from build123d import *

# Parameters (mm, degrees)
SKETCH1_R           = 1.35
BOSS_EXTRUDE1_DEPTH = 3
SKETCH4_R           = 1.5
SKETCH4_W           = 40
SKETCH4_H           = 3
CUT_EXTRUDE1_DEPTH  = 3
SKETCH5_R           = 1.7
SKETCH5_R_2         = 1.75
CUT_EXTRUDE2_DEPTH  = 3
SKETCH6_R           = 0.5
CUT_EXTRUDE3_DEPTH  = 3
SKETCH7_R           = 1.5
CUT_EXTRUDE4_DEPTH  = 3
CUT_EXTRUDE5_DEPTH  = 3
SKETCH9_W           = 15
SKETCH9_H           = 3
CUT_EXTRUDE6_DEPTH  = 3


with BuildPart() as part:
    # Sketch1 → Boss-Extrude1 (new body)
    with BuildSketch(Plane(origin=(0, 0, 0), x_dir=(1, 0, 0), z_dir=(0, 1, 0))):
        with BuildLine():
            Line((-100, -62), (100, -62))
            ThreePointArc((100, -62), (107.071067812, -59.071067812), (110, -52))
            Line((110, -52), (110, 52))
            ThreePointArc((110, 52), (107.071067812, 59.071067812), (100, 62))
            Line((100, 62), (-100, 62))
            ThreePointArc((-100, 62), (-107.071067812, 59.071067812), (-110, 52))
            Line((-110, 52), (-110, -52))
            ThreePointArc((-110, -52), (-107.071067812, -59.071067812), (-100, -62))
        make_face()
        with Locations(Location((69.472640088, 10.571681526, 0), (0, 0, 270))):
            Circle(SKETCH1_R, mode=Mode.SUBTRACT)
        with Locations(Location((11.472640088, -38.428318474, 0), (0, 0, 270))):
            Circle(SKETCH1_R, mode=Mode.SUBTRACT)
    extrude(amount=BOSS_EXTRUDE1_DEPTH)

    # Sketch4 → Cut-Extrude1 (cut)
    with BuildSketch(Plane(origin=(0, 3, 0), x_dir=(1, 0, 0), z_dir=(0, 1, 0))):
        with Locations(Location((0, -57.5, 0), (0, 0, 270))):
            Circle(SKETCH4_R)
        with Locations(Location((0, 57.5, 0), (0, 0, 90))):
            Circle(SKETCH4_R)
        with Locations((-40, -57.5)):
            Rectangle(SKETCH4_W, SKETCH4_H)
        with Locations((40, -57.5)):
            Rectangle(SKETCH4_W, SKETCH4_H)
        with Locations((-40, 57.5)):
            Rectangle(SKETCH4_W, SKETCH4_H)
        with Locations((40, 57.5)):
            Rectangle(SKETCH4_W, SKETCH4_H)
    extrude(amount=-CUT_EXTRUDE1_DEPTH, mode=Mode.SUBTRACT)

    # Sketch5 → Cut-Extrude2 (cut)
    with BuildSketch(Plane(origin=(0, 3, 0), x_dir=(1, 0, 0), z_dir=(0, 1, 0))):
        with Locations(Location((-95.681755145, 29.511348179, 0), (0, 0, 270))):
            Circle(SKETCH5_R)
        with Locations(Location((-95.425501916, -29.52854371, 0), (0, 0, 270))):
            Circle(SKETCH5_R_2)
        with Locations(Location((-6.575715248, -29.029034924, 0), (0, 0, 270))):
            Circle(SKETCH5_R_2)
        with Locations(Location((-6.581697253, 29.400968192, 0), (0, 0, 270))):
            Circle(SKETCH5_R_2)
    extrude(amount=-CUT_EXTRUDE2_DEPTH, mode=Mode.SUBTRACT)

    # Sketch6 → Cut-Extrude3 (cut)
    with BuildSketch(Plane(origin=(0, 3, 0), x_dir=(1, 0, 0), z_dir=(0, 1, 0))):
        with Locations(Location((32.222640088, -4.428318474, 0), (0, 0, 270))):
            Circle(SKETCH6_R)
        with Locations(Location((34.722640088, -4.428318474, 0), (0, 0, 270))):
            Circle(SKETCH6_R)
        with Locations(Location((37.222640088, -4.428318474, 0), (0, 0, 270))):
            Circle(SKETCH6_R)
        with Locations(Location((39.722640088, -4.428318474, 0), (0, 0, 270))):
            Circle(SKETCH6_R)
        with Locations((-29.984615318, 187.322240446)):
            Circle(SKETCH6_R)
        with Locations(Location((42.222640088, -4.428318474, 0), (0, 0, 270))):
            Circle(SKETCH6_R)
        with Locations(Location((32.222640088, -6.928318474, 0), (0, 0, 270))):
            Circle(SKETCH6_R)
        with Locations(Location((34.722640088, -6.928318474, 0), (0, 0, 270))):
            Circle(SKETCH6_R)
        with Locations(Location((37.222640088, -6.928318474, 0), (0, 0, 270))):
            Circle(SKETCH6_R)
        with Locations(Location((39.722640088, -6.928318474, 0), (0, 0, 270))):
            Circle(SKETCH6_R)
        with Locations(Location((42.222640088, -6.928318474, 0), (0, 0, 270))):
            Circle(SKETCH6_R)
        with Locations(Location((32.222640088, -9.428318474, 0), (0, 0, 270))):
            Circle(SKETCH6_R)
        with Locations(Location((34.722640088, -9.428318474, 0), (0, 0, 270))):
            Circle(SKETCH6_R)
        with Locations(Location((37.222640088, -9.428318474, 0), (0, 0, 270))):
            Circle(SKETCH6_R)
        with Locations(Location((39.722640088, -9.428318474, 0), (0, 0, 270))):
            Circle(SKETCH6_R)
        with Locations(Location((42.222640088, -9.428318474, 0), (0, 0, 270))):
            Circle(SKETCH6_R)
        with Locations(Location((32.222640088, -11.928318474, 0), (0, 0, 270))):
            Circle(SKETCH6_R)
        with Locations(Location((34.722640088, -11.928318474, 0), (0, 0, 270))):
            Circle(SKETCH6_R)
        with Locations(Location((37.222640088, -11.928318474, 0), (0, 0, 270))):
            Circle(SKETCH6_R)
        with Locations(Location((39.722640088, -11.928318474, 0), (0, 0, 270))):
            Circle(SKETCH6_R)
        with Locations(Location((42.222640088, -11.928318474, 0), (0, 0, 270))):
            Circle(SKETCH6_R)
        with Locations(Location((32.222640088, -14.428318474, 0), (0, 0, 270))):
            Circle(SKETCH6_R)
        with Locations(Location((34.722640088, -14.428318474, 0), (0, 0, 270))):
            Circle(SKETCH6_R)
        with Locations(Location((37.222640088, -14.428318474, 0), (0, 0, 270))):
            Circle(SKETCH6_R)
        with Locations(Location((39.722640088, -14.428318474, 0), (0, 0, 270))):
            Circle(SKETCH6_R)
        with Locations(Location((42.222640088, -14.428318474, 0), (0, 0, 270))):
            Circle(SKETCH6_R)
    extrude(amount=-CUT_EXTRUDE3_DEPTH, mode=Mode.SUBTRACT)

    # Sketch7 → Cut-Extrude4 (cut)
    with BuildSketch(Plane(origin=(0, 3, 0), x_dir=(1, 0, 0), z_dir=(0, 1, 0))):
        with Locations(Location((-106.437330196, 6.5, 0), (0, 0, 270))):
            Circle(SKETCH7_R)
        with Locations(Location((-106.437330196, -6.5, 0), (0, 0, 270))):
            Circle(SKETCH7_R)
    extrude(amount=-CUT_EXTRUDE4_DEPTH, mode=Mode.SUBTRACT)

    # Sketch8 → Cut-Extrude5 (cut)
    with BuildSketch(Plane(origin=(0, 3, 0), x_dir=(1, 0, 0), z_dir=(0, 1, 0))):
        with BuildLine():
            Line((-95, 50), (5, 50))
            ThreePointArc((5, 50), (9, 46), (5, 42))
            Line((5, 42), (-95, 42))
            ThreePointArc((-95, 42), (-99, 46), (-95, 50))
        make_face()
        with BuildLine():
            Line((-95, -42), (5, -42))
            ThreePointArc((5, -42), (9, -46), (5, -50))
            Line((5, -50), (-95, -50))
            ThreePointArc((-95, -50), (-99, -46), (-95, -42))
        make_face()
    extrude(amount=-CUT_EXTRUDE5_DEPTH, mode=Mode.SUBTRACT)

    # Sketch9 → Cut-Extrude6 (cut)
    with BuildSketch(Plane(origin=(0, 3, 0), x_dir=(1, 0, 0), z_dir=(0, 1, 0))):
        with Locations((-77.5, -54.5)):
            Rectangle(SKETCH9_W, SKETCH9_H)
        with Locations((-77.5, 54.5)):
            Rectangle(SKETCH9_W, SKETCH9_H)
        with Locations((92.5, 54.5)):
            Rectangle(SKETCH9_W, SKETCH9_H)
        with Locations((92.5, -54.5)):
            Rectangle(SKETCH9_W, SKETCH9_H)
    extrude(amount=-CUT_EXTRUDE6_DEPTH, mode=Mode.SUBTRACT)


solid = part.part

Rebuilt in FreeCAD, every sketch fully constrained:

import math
import FreeCAD as App
import Part
import Sketcher
from FreeCAD import Vector


def add_polygon(sketch, points):
    """Adds a closed chain of lines whose ends are joined by coincident constraints."""
    first, n = sketch.GeometryCount, len(points)
    for a, b in zip(points, points[1:] + points[:1]):
        sketch.addGeometry(Part.LineSegment(App.Vector(*a, 0), App.Vector(*b, 0)), False)
    for i in range(n):
        sketch.addConstraint(Sketcher.Constraint("Coincident", first + i, 2, first + (i + 1) % n, 1))

doc = App.newDocument("Part")
body = doc.addObject("PartDesign::Body", "Body")

sketch1 = body.newObject("Sketcher::SketchObject", "Sketch")
sketch1.AttachmentSupport = (doc.getObject("XZ_Plane"), [""])
sketch1.MapMode = "FlatFace"
sketch1.addGeometry([
    Part.LineSegment(Vector(-100, 62, 0), Vector(100, 62, 0)),
    Part.ArcOfCircle(Part.Circle(Vector(100, 52, 0), Vector(0, 0, 1), 10), math.radians(0), math.radians(90)),
    Part.LineSegment(Vector(110, 52, 0), Vector(110, -52, 0)),
    Part.ArcOfCircle(Part.Circle(Vector(100, -52, 0), Vector(0, 0, 1), 10), math.radians(-90), math.radians(0)),
    Part.LineSegment(Vector(100, -62, 0), Vector(-100, -62, 0)),
    Part.ArcOfCircle(Part.Circle(Vector(-100, -52, 0), Vector(0, 0, 1), 10), math.radians(180), math.radians(270)),
    Part.LineSegment(Vector(-110, -52, 0), Vector(-110, 52, 0)),
    Part.ArcOfCircle(Part.Circle(Vector(-100, 52, 0), Vector(0, 0, 1), 10), math.radians(90), math.radians(180)),
    Part.Circle(Vector(11.5, 38.4, 0), Vector(0, 0, 1), 1.4),
    Part.Circle(Vector(69.5, -10.6, 0), Vector(0, 0, 1), 1.4),
], False)
sketch1.addConstraint([
    Sketcher.Constraint("Tangent", 0, 2, 1, 2),
    Sketcher.Constraint("Tangent", 1, 1, 2, 1),
    Sketcher.Constraint("Tangent", 2, 2, 3, 2),
    Sketcher.Constraint("Tangent", 3, 1, 4, 1),
    Sketcher.Constraint("Tangent", 4, 2, 5, 2),
    Sketcher.Constraint("Tangent", 5, 1, 6, 1),
    Sketcher.Constraint("Tangent", 6, 2, 7, 2),
    Sketcher.Constraint("Tangent", 7, 1, 0, 1),
    Sketcher.Constraint("Horizontal", 0),
    Sketcher.Constraint("Vertical", 2),
    Sketcher.Constraint("Horizontal", 4),
    Sketcher.Constraint("Vertical", 6),
    Sketcher.Constraint("Equal", 1, 3),
    Sketcher.Constraint("Equal", 3, 5),
    Sketcher.Constraint("Equal", 5, 7),
    Sketcher.Constraint("Equal", 8, 9),
    Sketcher.Constraint("Symmetric", 1, 3, 5, 3, -1, 1),
    Sketcher.Constraint("Radius", 1, 10.0),
    Sketcher.Constraint("Diameter", 8, 2.7),
    Sketcher.Constraint("DistanceX", 0, 1, 0, 2, 200.0),
    Sketcher.Constraint("DistanceY", 2, 2, 2, 1, 104.0),
    Sketcher.Constraint("DistanceX", 8, 3, 9, 3, 58.0),
    Sketcher.Constraint("DistanceY", 9, 3, 8, 3, 49.0),
    Sketcher.Constraint("DistanceX", -1, 1, 8, 3, 11.47264),
    Sketcher.Constraint("DistanceY", -1, 1, 8, 3, 38.428318),
])
pad1 = body.newObject("PartDesign::Pad", "Pad")
pad1.Profile = sketch1
pad1.Length = 3
pad1.Reversed = True

sketch2 = body.newObject("Sketcher::SketchObject", "Sketch001")
sketch2.AttachmentSupport = (doc.getObject("XZ_Plane"), [""])
sketch2.MapMode = "FlatFace"
sketch2.AttachmentOffset = App.Placement(Vector(0, 0, -3), App.Rotation())
sketch2.addGeometry(Part.Circle(Vector(0, 57.5, 0), Vector(0, 0, 1), 1.5), False)
sketch2.addGeometry(Part.Circle(Vector(0, -57.5, 0), Vector(0, 0, 1), 1.5), False)
add_polygon(sketch2, [(-60, 56), (-60, 59), (-20, 59), (-20, 56)])
add_polygon(sketch2, [(20, 56), (20, 59), (60, 59), (60, 56)])
add_polygon(sketch2, [(-60, -59), (-60, -56), (-20, -56), (-20, -59)])
add_polygon(sketch2, [(20, -59), (20, -56), (60, -56), (60, -59)])
sketch2.addConstraint([
    Sketcher.Constraint("Vertical", 2),
    Sketcher.Constraint("Horizontal", 3),
    Sketcher.Constraint("Vertical", 4),
    Sketcher.Constraint("Horizontal", 5),
    Sketcher.Constraint("Vertical", 6),
    Sketcher.Constraint("Horizontal", 7),
    Sketcher.Constraint("Vertical", 8),
    Sketcher.Constraint("Horizontal", 9),
    Sketcher.Constraint("Vertical", 10),
    Sketcher.Constraint("Horizontal", 11),
    Sketcher.Constraint("Vertical", 12),
    Sketcher.Constraint("Horizontal", 13),
    Sketcher.Constraint("Vertical", 14),
    Sketcher.Constraint("Horizontal", 15),
    Sketcher.Constraint("Vertical", 16),
    Sketcher.Constraint("Horizontal", 17),
    Sketcher.Constraint("Equal", 0, 1),
    Sketcher.Constraint("Symmetric", 0, 3, 1, 3, -1, 1),
    Sketcher.Constraint("Symmetric", 8, 2, 10, 2, -1, 1),
    Sketcher.Constraint("Symmetric", 6, 2, 12, 2, -1, 1),
    Sketcher.Constraint("Symmetric", 4, 2, 14, 2, -1, 1),
    Sketcher.Constraint("Symmetric", 2, 2, 16, 2, -1, 1),
    Sketcher.Constraint("Symmetric", 3, 2, 6, 2, -2),
    Sketcher.Constraint("Symmetric", 5, 2, 8, 2, -2),
    Sketcher.Constraint("PointOnObject", 0, 3, -2),
    Sketcher.Constraint("Diameter", 0, 3.0),
    Sketcher.Constraint("DistanceX", 3, 1, 3, 2, 40.0),
    Sketcher.Constraint("DistanceY", 2, 1, 2, 2, 3.0),
    Sketcher.Constraint("DistanceX", 2, 2, -1, 1, 60.0),
    Sketcher.Constraint("DistanceY", -1, 1, 2, 2, 59.0),
    Sketcher.Constraint("DistanceY", 1, 3, 0, 3, 115.0),
])
pocket1 = body.newObject("PartDesign::Pocket", "Pocket")
pocket1.Profile = sketch2
pocket1.Length = 3
pocket1.Reversed = True

sketch3 = body.newObject("Sketcher::SketchObject", "Sketch002")
sketch3.AttachmentSupport = (doc.getObject("XZ_Plane"), [""])
sketch3.MapMode = "FlatFace"
sketch3.AttachmentOffset = App.Placement(Vector(0, 0, -3), App.Rotation())
sketch3.addGeometry([
    Part.Circle(Vector(-95.7, -29.5, 0), Vector(0, 0, 1), 1.7),
    Part.Circle(Vector(-95.4, 29.5, 0), Vector(0, 0, 1), 1.8),
    Part.Circle(Vector(-6.6, 29, 0), Vector(0, 0, 1), 1.8),
    Part.Circle(Vector(-6.6, -29.4, 0), Vector(0, 0, 1), 1.8),
], False)
sketch3.addConstraint([
    Sketcher.Constraint("Equal", 1, 2),
    Sketcher.Constraint("Equal", 2, 3),
    Sketcher.Constraint("Diameter", 0, 3.4),
    Sketcher.Constraint("Diameter", 1, 3.5),
    Sketcher.Constraint("DistanceX", 1, 3, -1, 1, 95.425502),
    Sketcher.Constraint("DistanceY", 0, 3, -1, 1, 29.511348),
    Sketcher.Constraint("DistanceY", 3, 3, -1, 1, 29.400968),
    Sketcher.Constraint("DistanceY", 0, 3, 1, 3, 59.039892),
    Sketcher.Constraint("DistanceY", 2, 3, 1, 3, 0.499509),
    Sketcher.Constraint("DistanceX", 0, 3, 2, 3, 89.10604),
    Sketcher.Constraint("DistanceX", 0, 3, -1, 1, 95.681755),
    Sketcher.Constraint("DistanceX", 3, 3, -1, 1, 6.581697),
])
pocket2 = body.newObject("PartDesign::Pocket", "Pocket001")
pocket2.Profile = sketch3
pocket2.Length = 3
pocket2.Reversed = True

sketch4 = body.newObject("Sketcher::SketchObject", "Sketch003")
sketch4.AttachmentSupport = (doc.getObject("XZ_Plane"), [""])
sketch4.MapMode = "FlatFace"
sketch4.AttachmentOffset = App.Placement(Vector(0, 0, -3), App.Rotation())
sketch4.addGeometry([
    Part.Circle(Vector(32.2, 4.4, 0), Vector(0, 0, 1), 0.5),
    Part.Circle(Vector(34.7, 4.4, 0), Vector(0, 0, 1), 0.5),
    Part.Circle(Vector(37.2, 4.4, 0), Vector(0, 0, 1), 0.5),
    Part.Circle(Vector(39.7, 4.4, 0), Vector(0, 0, 1), 0.5),
    Part.Circle(Vector(-30, -187.3, 0), Vector(0, 0, 1), 0.5),
    Part.Circle(Vector(42.2, 4.4, 0), Vector(0, 0, 1), 0.5),
    Part.Circle(Vector(32.2, 6.9, 0), Vector(0, 0, 1), 0.5),
    Part.Circle(Vector(34.7, 6.9, 0), Vector(0, 0, 1), 0.5),
    Part.Circle(Vector(37.2, 6.9, 0), Vector(0, 0, 1), 0.5),
    Part.Circle(Vector(39.7, 6.9, 0), Vector(0, 0, 1), 0.5),
    Part.Circle(Vector(42.2, 6.9, 0), Vector(0, 0, 1), 0.5),
    Part.Circle(Vector(32.2, 9.4, 0), Vector(0, 0, 1), 0.5),
    Part.Circle(Vector(34.7, 9.4, 0), Vector(0, 0, 1), 0.5),
    Part.Circle(Vector(37.2, 9.4, 0), Vector(0, 0, 1), 0.5),
    Part.Circle(Vector(39.7, 9.4, 0), Vector(0, 0, 1), 0.5),
    Part.Circle(Vector(42.2, 9.4, 0), Vector(0, 0, 1), 0.5),
    Part.Circle(Vector(32.2, 11.9, 0), Vector(0, 0, 1), 0.5),
    Part.Circle(Vector(34.7, 11.9, 0), Vector(0, 0, 1), 0.5),
    Part.Circle(Vector(37.2, 11.9, 0), Vector(0, 0, 1), 0.5),
    Part.Circle(Vector(39.7, 11.9, 0), Vector(0, 0, 1), 0.5),
    Part.Circle(Vector(42.2, 11.9, 0), Vector(0, 0, 1), 0.5),
    Part.Circle(Vector(32.2, 14.4, 0), Vector(0, 0, 1), 0.5),
    Part.Circle(Vector(34.7, 14.4, 0), Vector(0, 0, 1), 0.5),
    Part.Circle(Vector(37.2, 14.4, 0), Vector(0, 0, 1), 0.5),
    Part.Circle(Vector(39.7, 14.4, 0), Vector(0, 0, 1), 0.5),
    Part.Circle(Vector(42.2, 14.4, 0), Vector(0, 0, 1), 0.5),
], False)
sketch4.addConstraint([
    Sketcher.Constraint("Equal", 0, 1),
    Sketcher.Constraint("Equal", 1, 2),
    Sketcher.Constraint("Equal", 2, 3),
    Sketcher.Constraint("Equal", 3, 4),
    Sketcher.Constraint("Equal", 4, 5),
    Sketcher.Constraint("Equal", 5, 6),
    Sketcher.Constraint("Equal", 6, 7),
    Sketcher.Constraint("Equal", 7, 8),
    Sketcher.Constraint("Equal", 8, 9),
    Sketcher.Constraint("Equal", 9, 10),
    Sketcher.Constraint("Equal", 10, 11),
    Sketcher.Constraint("Equal", 11, 12),
    Sketcher.Constraint("Equal", 12, 13),
    Sketcher.Constraint("Equal", 13, 14),
    Sketcher.Constraint("Equal", 14, 15),
    Sketcher.Constraint("Equal", 15, 16),
    Sketcher.Constraint("Equal", 16, 17),
    Sketcher.Constraint("Equal", 17, 18),
    Sketcher.Constraint("Equal", 18, 19),
    Sketcher.Constraint("Equal", 19, 20),
    Sketcher.Constraint("Equal", 20, 21),
    Sketcher.Constraint("Equal", 21, 22),
    Sketcher.Constraint("Equal", 22, 23),
    Sketcher.Constraint("Equal", 23, 24),
    Sketcher.Constraint("Equal", 24, 25),
    Sketcher.Constraint("Horizontal", 0, 3, 1, 3),
    Sketcher.Constraint("Horizontal", 1, 3, 2, 3),
    Sketcher.Constraint("Horizontal", 2, 3, 3, 3),
    Sketcher.Constraint("Horizontal", 3, 3, 5, 3),
    Sketcher.Constraint("Horizontal", 6, 3, 7, 3),
    Sketcher.Constraint("Horizontal", 7, 3, 8, 3),
    Sketcher.Constraint("Horizontal", 8, 3, 9, 3),
    Sketcher.Constraint("Horizontal", 9, 3, 10, 3),
    Sketcher.Constraint("Horizontal", 11, 3, 12, 3),
    Sketcher.Constraint("Horizontal", 12, 3, 13, 3),
    Sketcher.Constraint("Horizontal", 13, 3, 14, 3),
    Sketcher.Constraint("Horizontal", 14, 3, 15, 3),
    Sketcher.Constraint("Horizontal", 16, 3, 17, 3),
    Sketcher.Constraint("Horizontal", 17, 3, 18, 3),
    Sketcher.Constraint("Horizontal", 18, 3, 19, 3),
    Sketcher.Constraint("Horizontal", 19, 3, 20, 3),
    Sketcher.Constraint("Horizontal", 21, 3, 22, 3),
    Sketcher.Constraint("Horizontal", 22, 3, 23, 3),
    Sketcher.Constraint("Horizontal", 23, 3, 24, 3),
    Sketcher.Constraint("Horizontal", 24, 3, 25, 3),
    Sketcher.Constraint("Vertical", 0, 3, 6, 3),
    Sketcher.Constraint("Vertical", 1, 3, 7, 3),
    Sketcher.Constraint("Vertical", 2, 3, 8, 3),
    Sketcher.Constraint("Vertical", 3, 3, 9, 3),
    Sketcher.Constraint("Vertical", 5, 3, 10, 3),
    Sketcher.Constraint("Vertical", 6, 3, 11, 3),
    Sketcher.Constraint("Vertical", 7, 3, 12, 3),
    Sketcher.Constraint("Vertical", 8, 3, 13, 3),
    Sketcher.Constraint("Vertical", 9, 3, 14, 3),
    Sketcher.Constraint("Vertical", 10, 3, 15, 3),
    Sketcher.Constraint("Vertical", 11, 3, 16, 3),
    Sketcher.Constraint("Vertical", 12, 3, 17, 3),
    Sketcher.Constraint("Vertical", 13, 3, 18, 3),
    Sketcher.Constraint("Vertical", 14, 3, 19, 3),
    Sketcher.Constraint("Vertical", 15, 3, 20, 3),
    Sketcher.Constraint("Vertical", 16, 3, 21, 3),
    Sketcher.Constraint("Vertical", 17, 3, 22, 3),
    Sketcher.Constraint("Vertical", 18, 3, 23, 3),
    Sketcher.Constraint("Vertical", 19, 3, 24, 3),
    Sketcher.Constraint("Vertical", 20, 3, 25, 3),
    Sketcher.Constraint("Diameter", 0, 1.0),
    Sketcher.Constraint("DistanceX", 0, 3, 2, 3, 5.0),
    Sketcher.Constraint("DistanceX", 1, 3, 3, 3, 5.0),
    Sketcher.Constraint("DistanceX", 2, 3, 5, 3, 5.0),
    Sketcher.Constraint("DistanceY", 0, 3, 11, 3, 5.0),
    Sketcher.Constraint("DistanceY", 6, 3, 16, 3, 5.0),
    Sketcher.Constraint("DistanceY", 11, 3, 21, 3, 5.0),
    Sketcher.Constraint("DistanceX", 0, 3, 1, 3, 2.5),
    Sketcher.Constraint("DistanceY", 0, 3, 6, 3, 2.5),
    Sketcher.Constraint("DistanceX", -1, 1, 0, 3, 32.22264),
    Sketcher.Constraint("DistanceY", -1, 1, 0, 3, 4.428318),
    Sketcher.Constraint("DistanceY", 4, 3, -1, 1, 187.32224),
    Sketcher.Constraint("DistanceX", 4, 3, -1, 1, 29.984615),
])
pocket3 = body.newObject("PartDesign::Pocket", "Pocket002")
pocket3.Profile = sketch4
pocket3.Length = 3
pocket3.Reversed = True

sketch5 = body.newObject("Sketcher::SketchObject", "Sketch004")
sketch5.AttachmentSupport = (doc.getObject("XZ_Plane"), [""])
sketch5.MapMode = "FlatFace"
sketch5.AttachmentOffset = App.Placement(Vector(0, 0, -3), App.Rotation())
sketch5.addGeometry([
    Part.Circle(Vector(-106.4, -6.5, 0), Vector(0, 0, 1), 1.5),
    Part.Circle(Vector(-106.4, 6.5, 0), Vector(0, 0, 1), 1.5),
], False)
sketch5.addConstraint([
    Sketcher.Constraint("Equal", 0, 1),
    Sketcher.Constraint("Symmetric", 0, 3, 1, 3, -1),
    Sketcher.Constraint("Diameter", 0, 3.0),
    Sketcher.Constraint("DistanceY", 0, 3, 1, 3, 13.0),
    Sketcher.Constraint("DistanceX", 0, 3, -1, 1, 106.43733),
])
pocket4 = body.newObject("PartDesign::Pocket", "Pocket003")
pocket4.Profile = sketch5
pocket4.Length = 3
pocket4.Reversed = True

sketch6 = body.newObject("Sketcher::SketchObject", "Sketch005")
sketch6.AttachmentSupport = (doc.getObject("XZ_Plane"), [""])
sketch6.MapMode = "FlatFace"
sketch6.AttachmentOffset = App.Placement(Vector(0, 0, -3), App.Rotation())
sketch6.addGeometry([
    Part.LineSegment(Vector(5, -50, 0), Vector(-95, -50, 0)),
    Part.ArcOfCircle(Part.Circle(Vector(-95, -46, 0), Vector(0, 0, 1), 4), math.radians(90), math.radians(270)),
    Part.LineSegment(Vector(-95, -42, 0), Vector(5, -42, 0)),
    Part.ArcOfCircle(Part.Circle(Vector(5, -46, 0), Vector(0, 0, 1), 4), math.radians(-90), math.radians(90)),
    Part.LineSegment(Vector(5, 42, 0), Vector(-95, 42, 0)),
    Part.ArcOfCircle(Part.Circle(Vector(-95, 46, 0), Vector(0, 0, 1), 4), math.radians(90), math.radians(270)),
    Part.LineSegment(Vector(-95, 50, 0), Vector(5, 50, 0)),
    Part.ArcOfCircle(Part.Circle(Vector(5, 46, 0), Vector(0, 0, 1), 4), math.radians(-90), math.radians(90)),
], False)
sketch6.addConstraint([
    Sketcher.Constraint("Tangent", 0, 2, 1, 2),
    Sketcher.Constraint("Tangent", 1, 1, 2, 1),
    Sketcher.Constraint("Tangent", 2, 2, 3, 2),
    Sketcher.Constraint("Tangent", 3, 1, 0, 1),
    Sketcher.Constraint("Tangent", 4, 2, 5, 2),
    Sketcher.Constraint("Tangent", 5, 1, 6, 1),
    Sketcher.Constraint("Tangent", 6, 2, 7, 2),
    Sketcher.Constraint("Tangent", 7, 1, 4, 1),
    Sketcher.Constraint("Horizontal", 0),
    Sketcher.Constraint("Horizontal", 2),
    Sketcher.Constraint("Horizontal", 4),
    Sketcher.Constraint("Horizontal", 6),
    Sketcher.Constraint("Equal", 3, 5),
    Sketcher.Constraint("Symmetric", 1, 3, 5, 3, -1),
    Sketcher.Constraint("Vertical", 3, 3, 7, 3),
    Sketcher.Constraint("Radius", 1, 4.0),
    Sketcher.Constraint("DistanceX", 0, 2, 0, 1, 100.0),
    Sketcher.Constraint("DistanceX", 1, 3, -1, 1, 95.0),
    Sketcher.Constraint("DistanceY", 1, 3, -1, 1, 46.0),
])
pocket5 = body.newObject("PartDesign::Pocket", "Pocket004")
pocket5.Profile = sketch6
pocket5.Length = 3
pocket5.Reversed = True

sketch7 = body.newObject("Sketcher::SketchObject", "Sketch006")
sketch7.AttachmentSupport = (doc.getObject("XZ_Plane"), [""])
sketch7.MapMode = "FlatFace"
sketch7.AttachmentOffset = App.Placement(Vector(0, 0, -3), App.Rotation())
add_polygon(sketch7, [(-85, 53), (-85, 56), (-70, 56), (-70, 53)])
add_polygon(sketch7, [(-85, -56), (-85, -53), (-70, -53), (-70, -56)])
add_polygon(sketch7, [(85, -56), (85, -53), (100, -53), (100, -56)])
add_polygon(sketch7, [(85, 53), (85, 56), (100, 56), (100, 53)])
sketch7.addConstraint([
    Sketcher.Constraint("Vertical", 0),
    Sketcher.Constraint("Horizontal", 1),
    Sketcher.Constraint("Vertical", 2),
    Sketcher.Constraint("Horizontal", 3),
    Sketcher.Constraint("Vertical", 4),
    Sketcher.Constraint("Horizontal", 5),
    Sketcher.Constraint("Vertical", 6),
    Sketcher.Constraint("Horizontal", 7),
    Sketcher.Constraint("Vertical", 8),
    Sketcher.Constraint("Horizontal", 9),
    Sketcher.Constraint("Vertical", 10),
    Sketcher.Constraint("Horizontal", 11),
    Sketcher.Constraint("Vertical", 12),
    Sketcher.Constraint("Horizontal", 13),
    Sketcher.Constraint("Vertical", 14),
    Sketcher.Constraint("Horizontal", 15),
    Sketcher.Constraint("Symmetric", 3, 2, 8, 2, -1, 1),
    Sketcher.Constraint("Symmetric", 7, 2, 12, 2, -1, 1),
    Sketcher.Constraint("Symmetric", 4, 2, 8, 2, -2),
    Sketcher.Constraint("Symmetric", 1, 2, 6, 2, -1),
    Sketcher.Constraint("Symmetric", 10, 2, 13, 2, -1),
    Sketcher.Constraint("Horizontal", 3, 2, 14, 2),
    Sketcher.Constraint("Equal", 7, 9),
    Sketcher.Constraint("DistanceX", 1, 1, 1, 2, 15.0),
    Sketcher.Constraint("DistanceY", 0, 1, 0, 2, 3.0),
    Sketcher.Constraint("DistanceX", 0, 2, -1, 1, 85.0),
    Sketcher.Constraint("DistanceY", -1, 1, 0, 2, 56.0),
])
pocket6 = body.newObject("PartDesign::Pocket", "Pocket005")
pocket6.Profile = sketch7
pocket6.Length = 3
pocket6.Reversed = True

doc.recompute()
